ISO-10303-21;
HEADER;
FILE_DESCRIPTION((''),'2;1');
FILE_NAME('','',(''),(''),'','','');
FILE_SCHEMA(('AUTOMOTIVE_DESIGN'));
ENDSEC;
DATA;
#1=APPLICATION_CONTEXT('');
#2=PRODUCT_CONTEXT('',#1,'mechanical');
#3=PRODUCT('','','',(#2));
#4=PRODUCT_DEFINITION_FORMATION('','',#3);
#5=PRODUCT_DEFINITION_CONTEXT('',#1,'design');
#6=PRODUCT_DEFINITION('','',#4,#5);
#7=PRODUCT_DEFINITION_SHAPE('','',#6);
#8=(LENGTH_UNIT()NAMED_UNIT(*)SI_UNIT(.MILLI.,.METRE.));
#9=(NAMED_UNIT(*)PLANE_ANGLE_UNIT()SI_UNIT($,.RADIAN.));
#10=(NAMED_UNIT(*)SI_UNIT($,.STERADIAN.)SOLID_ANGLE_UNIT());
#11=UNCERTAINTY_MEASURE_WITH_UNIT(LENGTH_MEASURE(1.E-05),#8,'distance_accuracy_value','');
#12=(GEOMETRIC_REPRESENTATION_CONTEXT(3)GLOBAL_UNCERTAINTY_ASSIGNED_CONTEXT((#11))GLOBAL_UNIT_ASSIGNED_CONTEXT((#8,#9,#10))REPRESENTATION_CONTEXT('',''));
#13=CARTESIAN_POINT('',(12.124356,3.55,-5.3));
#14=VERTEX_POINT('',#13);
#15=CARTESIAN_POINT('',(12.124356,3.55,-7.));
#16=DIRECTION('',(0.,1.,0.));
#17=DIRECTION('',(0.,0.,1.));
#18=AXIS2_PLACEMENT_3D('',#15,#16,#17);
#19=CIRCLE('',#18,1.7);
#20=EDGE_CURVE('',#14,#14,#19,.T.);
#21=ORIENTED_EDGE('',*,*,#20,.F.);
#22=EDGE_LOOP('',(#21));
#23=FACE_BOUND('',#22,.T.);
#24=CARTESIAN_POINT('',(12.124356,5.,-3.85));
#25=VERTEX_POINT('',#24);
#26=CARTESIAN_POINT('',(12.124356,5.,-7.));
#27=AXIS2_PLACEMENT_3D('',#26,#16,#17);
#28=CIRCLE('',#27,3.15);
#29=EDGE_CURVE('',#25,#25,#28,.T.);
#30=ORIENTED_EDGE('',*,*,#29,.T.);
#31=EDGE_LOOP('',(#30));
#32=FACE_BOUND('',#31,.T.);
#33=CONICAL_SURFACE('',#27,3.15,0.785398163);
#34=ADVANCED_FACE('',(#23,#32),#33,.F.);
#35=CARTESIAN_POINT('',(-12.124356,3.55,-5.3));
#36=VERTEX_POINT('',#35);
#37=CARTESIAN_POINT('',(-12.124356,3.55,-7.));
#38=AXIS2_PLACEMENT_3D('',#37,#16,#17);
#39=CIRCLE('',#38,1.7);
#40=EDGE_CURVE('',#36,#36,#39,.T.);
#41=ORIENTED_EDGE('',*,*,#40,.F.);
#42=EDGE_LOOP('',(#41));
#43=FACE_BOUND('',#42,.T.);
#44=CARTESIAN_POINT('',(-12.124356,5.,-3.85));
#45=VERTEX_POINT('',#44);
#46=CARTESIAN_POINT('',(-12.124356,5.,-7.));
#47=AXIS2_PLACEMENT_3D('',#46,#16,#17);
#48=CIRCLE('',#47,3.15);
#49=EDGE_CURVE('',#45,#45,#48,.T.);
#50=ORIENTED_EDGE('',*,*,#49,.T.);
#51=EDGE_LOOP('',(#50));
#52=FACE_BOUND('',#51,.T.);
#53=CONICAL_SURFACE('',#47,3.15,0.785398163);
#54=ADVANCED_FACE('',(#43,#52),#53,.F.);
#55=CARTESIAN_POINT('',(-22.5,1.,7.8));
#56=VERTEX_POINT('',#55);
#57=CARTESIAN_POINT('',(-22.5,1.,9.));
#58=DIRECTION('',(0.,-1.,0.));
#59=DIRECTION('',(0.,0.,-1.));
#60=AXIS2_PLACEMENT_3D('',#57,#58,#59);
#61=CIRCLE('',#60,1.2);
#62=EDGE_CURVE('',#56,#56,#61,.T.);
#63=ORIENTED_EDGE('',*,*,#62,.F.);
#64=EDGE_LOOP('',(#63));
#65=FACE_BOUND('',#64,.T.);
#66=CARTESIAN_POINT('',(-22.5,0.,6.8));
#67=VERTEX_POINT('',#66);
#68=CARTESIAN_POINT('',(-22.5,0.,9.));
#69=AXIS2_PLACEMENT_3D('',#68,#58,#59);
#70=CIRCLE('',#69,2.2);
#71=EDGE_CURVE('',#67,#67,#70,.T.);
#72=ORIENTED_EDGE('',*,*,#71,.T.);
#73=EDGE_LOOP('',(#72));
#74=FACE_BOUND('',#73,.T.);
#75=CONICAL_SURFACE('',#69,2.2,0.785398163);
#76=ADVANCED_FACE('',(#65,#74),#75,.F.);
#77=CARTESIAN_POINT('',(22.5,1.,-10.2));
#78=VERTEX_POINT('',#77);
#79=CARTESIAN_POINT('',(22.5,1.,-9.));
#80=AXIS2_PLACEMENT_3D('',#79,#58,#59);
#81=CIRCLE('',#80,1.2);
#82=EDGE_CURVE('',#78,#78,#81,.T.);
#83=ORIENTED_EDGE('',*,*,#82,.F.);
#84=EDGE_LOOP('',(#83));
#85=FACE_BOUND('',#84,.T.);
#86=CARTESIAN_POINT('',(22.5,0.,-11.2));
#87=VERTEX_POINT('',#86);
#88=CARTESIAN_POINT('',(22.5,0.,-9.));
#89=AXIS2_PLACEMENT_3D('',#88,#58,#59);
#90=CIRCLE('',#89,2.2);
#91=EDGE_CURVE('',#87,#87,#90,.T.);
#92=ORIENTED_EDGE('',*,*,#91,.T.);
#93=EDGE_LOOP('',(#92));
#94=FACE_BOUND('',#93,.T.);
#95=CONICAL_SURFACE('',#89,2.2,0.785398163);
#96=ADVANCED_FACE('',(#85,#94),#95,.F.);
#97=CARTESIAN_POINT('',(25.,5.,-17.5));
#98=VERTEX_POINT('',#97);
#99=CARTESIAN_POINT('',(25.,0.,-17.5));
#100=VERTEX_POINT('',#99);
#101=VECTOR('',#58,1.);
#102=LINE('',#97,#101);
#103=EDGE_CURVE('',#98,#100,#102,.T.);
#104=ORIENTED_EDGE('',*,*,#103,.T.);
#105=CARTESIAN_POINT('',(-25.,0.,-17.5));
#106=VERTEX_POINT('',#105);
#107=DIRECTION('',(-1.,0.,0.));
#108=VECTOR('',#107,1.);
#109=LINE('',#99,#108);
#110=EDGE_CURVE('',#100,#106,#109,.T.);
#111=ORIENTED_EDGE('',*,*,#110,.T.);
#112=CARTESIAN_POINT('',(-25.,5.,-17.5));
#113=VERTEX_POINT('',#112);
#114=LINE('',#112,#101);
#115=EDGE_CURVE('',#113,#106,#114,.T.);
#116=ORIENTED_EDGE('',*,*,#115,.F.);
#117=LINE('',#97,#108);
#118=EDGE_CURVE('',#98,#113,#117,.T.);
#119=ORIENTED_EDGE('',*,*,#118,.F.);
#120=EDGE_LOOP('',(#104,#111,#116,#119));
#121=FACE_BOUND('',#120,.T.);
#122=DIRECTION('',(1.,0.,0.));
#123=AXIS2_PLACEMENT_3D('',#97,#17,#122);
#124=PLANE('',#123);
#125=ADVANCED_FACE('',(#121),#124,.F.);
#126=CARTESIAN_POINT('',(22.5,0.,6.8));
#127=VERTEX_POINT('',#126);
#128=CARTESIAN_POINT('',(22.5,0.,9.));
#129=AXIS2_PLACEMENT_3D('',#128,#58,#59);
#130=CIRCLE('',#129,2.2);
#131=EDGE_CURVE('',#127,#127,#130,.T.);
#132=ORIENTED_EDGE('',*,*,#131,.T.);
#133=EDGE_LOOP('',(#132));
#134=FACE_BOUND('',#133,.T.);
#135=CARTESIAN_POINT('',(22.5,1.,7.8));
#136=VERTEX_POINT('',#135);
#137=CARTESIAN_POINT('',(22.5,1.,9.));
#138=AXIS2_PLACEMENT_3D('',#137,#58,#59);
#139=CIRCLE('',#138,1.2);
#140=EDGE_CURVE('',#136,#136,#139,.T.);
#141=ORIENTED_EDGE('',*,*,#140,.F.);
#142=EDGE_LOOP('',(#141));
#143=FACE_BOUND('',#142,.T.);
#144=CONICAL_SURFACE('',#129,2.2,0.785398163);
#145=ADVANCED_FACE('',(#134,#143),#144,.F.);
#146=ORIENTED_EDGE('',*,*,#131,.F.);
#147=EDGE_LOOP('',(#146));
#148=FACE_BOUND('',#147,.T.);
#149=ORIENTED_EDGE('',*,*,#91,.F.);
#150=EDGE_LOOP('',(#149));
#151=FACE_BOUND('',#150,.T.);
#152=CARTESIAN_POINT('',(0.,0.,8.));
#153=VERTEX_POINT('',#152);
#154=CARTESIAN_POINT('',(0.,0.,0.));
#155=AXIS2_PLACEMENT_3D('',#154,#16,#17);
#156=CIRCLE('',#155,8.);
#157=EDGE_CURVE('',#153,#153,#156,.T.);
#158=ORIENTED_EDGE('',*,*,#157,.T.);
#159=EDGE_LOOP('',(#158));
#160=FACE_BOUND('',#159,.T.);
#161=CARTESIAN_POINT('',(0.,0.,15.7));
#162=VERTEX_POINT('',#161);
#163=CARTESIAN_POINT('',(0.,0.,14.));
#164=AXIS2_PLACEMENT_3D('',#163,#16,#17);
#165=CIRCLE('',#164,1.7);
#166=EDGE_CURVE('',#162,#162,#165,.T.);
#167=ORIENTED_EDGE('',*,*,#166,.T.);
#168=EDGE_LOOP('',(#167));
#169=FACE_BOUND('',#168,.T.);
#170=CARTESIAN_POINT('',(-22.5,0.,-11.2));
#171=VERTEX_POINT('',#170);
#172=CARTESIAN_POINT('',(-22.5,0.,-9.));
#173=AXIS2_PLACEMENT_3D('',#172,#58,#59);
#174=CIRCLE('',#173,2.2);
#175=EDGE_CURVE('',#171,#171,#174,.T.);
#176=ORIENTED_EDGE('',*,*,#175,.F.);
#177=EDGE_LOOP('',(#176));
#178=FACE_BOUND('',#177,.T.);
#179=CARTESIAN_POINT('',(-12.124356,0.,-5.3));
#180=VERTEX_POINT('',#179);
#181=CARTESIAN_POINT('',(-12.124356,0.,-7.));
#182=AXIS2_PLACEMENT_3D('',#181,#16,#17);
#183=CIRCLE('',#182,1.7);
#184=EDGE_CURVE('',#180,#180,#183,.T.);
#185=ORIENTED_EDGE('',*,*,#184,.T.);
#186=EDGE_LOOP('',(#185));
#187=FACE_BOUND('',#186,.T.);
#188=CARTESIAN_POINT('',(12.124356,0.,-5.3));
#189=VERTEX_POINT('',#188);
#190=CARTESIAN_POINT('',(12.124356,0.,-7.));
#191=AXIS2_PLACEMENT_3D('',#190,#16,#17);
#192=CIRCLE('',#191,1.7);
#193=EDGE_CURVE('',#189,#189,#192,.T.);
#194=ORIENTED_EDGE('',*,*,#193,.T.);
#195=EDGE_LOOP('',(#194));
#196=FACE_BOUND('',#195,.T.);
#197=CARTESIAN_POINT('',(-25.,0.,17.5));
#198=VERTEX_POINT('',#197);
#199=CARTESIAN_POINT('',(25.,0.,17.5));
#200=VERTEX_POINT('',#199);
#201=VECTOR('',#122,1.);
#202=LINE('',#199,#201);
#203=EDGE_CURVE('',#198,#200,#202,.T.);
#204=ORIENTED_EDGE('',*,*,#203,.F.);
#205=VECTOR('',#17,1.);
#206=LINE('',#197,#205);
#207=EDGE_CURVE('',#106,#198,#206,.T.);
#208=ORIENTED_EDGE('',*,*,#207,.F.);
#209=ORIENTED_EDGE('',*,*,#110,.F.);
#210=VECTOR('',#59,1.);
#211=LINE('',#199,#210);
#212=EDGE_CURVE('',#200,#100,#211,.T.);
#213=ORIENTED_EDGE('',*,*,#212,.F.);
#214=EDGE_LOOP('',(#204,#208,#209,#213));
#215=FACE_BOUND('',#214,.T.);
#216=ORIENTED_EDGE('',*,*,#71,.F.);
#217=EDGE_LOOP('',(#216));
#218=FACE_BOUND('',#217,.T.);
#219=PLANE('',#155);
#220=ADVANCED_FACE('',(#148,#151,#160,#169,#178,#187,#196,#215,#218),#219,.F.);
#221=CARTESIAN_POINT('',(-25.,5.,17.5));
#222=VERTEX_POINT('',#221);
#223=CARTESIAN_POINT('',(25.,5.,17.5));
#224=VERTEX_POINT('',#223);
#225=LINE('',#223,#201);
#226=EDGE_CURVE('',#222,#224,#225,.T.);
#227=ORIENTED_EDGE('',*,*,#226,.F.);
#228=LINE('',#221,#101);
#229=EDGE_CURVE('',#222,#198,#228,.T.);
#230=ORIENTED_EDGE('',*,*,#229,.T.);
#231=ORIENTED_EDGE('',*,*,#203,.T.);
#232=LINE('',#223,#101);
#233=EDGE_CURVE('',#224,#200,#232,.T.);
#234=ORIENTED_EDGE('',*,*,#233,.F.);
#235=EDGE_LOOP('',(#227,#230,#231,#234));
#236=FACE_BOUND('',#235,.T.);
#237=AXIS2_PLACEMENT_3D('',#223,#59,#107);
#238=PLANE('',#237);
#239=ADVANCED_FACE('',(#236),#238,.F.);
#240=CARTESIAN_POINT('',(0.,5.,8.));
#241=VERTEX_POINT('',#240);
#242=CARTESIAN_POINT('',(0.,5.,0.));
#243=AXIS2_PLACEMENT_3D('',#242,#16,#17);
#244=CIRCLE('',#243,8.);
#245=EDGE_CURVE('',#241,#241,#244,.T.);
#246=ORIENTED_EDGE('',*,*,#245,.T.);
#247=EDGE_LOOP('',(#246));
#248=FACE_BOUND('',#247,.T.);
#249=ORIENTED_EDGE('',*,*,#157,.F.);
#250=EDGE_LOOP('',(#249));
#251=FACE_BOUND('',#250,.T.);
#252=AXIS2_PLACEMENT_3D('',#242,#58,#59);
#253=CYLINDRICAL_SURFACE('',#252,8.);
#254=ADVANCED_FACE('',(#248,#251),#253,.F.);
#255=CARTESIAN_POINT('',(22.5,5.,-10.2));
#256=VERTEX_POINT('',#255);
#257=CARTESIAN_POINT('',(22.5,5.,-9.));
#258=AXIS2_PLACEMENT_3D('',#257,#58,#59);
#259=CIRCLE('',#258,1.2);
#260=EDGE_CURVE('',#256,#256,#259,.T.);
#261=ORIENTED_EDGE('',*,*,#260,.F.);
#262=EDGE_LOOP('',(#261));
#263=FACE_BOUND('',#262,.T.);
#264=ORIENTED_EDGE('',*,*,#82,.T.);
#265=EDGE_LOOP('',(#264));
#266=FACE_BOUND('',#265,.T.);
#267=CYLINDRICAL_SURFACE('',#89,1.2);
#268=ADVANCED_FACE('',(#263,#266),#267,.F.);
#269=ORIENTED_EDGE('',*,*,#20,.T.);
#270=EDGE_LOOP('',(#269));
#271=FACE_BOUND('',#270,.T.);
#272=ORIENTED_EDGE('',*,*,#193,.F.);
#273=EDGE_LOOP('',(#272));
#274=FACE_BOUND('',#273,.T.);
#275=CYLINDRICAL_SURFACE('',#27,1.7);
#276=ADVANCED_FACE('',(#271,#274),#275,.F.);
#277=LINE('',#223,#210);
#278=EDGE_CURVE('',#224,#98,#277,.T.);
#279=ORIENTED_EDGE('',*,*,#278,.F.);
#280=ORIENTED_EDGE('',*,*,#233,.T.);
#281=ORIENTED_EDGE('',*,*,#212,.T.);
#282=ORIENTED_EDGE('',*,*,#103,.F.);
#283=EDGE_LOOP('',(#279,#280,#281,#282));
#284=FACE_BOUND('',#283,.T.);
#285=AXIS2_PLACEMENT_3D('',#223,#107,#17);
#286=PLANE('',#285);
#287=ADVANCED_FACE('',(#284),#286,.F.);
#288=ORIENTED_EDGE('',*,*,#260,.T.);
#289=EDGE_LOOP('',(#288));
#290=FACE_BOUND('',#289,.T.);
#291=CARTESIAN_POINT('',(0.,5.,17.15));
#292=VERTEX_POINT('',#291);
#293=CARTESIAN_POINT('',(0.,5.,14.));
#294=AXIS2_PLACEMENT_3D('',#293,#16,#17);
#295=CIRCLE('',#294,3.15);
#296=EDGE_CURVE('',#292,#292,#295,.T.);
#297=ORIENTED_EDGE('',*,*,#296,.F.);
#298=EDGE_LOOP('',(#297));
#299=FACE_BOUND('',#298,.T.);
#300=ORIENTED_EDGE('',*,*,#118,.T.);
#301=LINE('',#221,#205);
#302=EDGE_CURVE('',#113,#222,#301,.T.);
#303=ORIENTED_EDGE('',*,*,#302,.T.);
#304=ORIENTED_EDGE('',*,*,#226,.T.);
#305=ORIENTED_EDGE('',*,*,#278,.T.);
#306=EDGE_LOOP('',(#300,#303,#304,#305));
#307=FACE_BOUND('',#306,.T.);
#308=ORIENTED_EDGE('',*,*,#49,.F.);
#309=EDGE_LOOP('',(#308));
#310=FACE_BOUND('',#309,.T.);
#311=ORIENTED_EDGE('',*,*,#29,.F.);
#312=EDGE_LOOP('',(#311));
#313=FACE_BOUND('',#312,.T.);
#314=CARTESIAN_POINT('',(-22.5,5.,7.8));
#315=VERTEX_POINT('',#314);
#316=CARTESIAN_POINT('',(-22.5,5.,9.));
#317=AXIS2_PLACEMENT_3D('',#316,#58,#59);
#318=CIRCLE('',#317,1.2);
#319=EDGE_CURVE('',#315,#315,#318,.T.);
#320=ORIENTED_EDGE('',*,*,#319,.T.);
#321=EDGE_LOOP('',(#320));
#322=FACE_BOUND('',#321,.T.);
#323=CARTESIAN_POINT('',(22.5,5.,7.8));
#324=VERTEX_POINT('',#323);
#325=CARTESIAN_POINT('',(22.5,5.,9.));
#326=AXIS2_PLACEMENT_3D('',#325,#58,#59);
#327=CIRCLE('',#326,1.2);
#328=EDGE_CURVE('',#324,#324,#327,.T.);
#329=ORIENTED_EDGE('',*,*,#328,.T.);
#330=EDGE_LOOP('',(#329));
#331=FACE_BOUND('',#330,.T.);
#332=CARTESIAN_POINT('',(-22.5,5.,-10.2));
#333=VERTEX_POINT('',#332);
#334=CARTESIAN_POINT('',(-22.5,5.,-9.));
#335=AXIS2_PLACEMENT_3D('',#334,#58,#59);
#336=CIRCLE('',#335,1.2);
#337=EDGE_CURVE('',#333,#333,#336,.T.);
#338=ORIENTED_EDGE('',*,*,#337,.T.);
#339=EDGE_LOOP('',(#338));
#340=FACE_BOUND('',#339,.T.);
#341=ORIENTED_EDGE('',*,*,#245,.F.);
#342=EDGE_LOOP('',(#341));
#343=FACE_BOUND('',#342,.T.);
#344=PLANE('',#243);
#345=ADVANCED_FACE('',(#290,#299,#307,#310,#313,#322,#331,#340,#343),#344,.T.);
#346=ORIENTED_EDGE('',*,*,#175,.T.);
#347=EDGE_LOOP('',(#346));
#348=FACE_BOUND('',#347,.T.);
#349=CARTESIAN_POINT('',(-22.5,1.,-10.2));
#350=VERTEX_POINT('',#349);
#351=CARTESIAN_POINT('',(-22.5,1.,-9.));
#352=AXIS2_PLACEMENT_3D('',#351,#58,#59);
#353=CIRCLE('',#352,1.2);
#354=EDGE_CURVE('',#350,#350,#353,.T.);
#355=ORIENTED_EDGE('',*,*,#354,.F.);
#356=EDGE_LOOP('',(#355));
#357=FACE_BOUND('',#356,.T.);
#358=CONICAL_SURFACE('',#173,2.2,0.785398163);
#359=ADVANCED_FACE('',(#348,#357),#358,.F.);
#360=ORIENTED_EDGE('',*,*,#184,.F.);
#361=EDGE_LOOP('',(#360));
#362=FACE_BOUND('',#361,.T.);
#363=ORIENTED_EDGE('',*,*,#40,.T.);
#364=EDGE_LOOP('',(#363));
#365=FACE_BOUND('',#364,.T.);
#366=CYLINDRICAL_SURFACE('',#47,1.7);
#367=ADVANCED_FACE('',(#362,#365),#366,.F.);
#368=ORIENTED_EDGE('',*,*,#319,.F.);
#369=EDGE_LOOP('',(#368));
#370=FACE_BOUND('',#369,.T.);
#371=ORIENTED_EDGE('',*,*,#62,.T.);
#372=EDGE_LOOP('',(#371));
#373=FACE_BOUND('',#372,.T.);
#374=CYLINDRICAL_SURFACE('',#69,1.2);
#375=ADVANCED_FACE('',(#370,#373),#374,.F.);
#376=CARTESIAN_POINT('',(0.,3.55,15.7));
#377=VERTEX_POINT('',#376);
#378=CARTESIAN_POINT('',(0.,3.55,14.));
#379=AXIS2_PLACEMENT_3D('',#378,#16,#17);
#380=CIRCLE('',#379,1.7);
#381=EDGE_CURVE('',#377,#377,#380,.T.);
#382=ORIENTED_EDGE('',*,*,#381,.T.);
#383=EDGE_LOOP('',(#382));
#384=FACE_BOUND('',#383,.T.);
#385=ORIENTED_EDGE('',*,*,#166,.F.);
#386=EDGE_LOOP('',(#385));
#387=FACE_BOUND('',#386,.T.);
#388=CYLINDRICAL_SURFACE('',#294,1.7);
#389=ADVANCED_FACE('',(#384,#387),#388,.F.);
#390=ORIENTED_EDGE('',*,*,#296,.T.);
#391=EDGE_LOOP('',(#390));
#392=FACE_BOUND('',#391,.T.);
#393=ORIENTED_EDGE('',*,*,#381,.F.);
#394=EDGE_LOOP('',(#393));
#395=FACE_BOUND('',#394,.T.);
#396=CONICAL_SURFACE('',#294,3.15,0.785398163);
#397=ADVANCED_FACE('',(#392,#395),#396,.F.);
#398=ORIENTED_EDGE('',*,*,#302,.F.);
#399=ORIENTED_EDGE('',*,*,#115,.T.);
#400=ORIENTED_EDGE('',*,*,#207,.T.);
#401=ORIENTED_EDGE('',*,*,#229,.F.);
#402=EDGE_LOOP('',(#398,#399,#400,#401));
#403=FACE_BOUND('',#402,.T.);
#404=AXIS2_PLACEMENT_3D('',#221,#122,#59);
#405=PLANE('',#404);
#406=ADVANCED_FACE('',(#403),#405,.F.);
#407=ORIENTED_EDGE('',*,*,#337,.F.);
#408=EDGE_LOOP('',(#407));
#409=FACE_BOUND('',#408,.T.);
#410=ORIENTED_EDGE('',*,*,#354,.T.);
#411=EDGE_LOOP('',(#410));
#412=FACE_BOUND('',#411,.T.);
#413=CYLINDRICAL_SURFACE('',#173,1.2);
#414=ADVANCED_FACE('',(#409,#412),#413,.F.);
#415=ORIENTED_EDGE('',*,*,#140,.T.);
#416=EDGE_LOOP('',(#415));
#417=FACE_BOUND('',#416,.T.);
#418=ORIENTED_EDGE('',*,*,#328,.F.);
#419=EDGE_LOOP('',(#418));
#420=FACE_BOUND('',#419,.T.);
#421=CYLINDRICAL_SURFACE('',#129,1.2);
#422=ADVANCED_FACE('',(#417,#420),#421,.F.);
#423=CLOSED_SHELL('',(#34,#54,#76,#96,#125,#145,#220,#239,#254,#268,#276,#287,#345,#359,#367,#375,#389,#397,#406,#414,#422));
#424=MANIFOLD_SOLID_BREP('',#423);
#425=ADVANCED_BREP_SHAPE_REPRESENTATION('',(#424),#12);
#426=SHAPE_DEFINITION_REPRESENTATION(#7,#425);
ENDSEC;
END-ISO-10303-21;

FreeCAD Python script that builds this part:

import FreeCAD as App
import Part
import Sketcher
from FreeCAD import Vector
Q = App.Units.Quantity

doc = App.newDocument("Part")
body = doc.addObject("PartDesign::Body", "Body")

# Sketch on XZ plane
sketch1 = body.newObject("Sketcher::SketchObject", "Sketch")
sketch1.AttachmentSupport = (doc.getObject("XZ_Plane"), [""])
sketch1.MapMode = "FlatFace"
sketch1.addGeometry([
    Part.LineSegment(Vector(-25, -18, 0), Vector(-25, 18, 0)),  # 0
    Part.LineSegment(Vector(-25, 18, 0), Vector(25, 18, 0)),  # 1
    Part.LineSegment(Vector(25, 18, 0), Vector(25, -18, 0)),  # 2
    Part.LineSegment(Vector(25, -18, 0), Vector(-25, -18, 0)),  # 3
    Part.Circle(Vector(0, 0, 0), Vector(0, 0, 1), 8),  # 4
], False)
sketch1.addConstraint([
    Sketcher.Constraint("Coincident", 0, 2, 1, 1),
    Sketcher.Constraint("Coincident", 1, 2, 2, 1),
    Sketcher.Constraint("Coincident", 2, 2, 3, 1),
    Sketcher.Constraint("Coincident", 3, 2, 0, 1),
    Sketcher.Constraint("Vertical", 0),
    Sketcher.Constraint("Horizontal", 1),
    Sketcher.Constraint("Vertical", 2),
    Sketcher.Constraint("Horizontal", 3),
    Sketcher.Constraint("Coincident", 4, 3, -1, 1),
    Sketcher.Constraint("Symmetric", 0, 2, 2, 2, -1, 1),
    Sketcher.Constraint("Diameter", 4, Q("16 mm")),
    Sketcher.Constraint("DistanceX", 1, 1, 1, 2, Q("50 mm")),
    Sketcher.Constraint("DistanceY", 0, 1, 0, 2, Q("35 mm")),
])
pad1 = body.newObject("PartDesign::Pad", "Pad")
pad1.Profile = sketch1
pad1.Length = 5
pad1.Reversed = True

# Sketch on XZ plane
sketch2 = body.newObject("Sketcher::SketchObject", "Sketch001")
sketch2.AttachmentSupport = (doc.getObject("XZ_Plane"), [""])
sketch2.MapMode = "FlatFace"
sketch2.AttachmentOffset = App.Placement(Vector(0, 0, -5), App.Rotation())
sketch2.addGeometry([
    Part.Circle(Vector(12.1, -7, 0), Vector(0, 0, 1), 1.7),
    Part.Circle(Vector(0, 14, 0), Vector(0, 0, 1), 1.7),
    Part.Circle(Vector(-12.1, -7, 0), Vector(0, 0, 1), 1.7),
], False)
sketch2.addConstraint([
    Sketcher.Constraint("Equal", 0, 1),
    Sketcher.Constraint("Equal", 1, 2),
    Sketcher.Constraint("Symmetric", 0, 3, 2, 3, -2),
    Sketcher.Constraint("PointOnObject", 1, 3, -2),
    Sketcher.Constraint("Diameter", 0, Q("3.4 mm")),
    Sketcher.Constraint("DistanceY", 0, 3, -1, 1, Q("7 mm")),
    Sketcher.Constraint("DistanceY", -1, 1, 1, 3, Q("14 mm")),
    Sketcher.Constraint("DistanceX", 2, 3, 0, 3, Q("24.248711 mm")),
])
doc.recompute()
hole = body.newObject("PartDesign::Hole", "Hole")
hole.Profile = sketch2
hole.ThreadType = "None"
hole.Diameter = 3.4
hole.DepthType = "ThroughAll"
hole.HoleCutType = "Countersink"
hole.HoleCutDiameter = 6.3
hole.HoleCutCountersinkAngle = 90
hole.Reversed = True

# Sketch on XZ plane
sketch3 = body.newObject("Sketcher::SketchObject", "Sketch002")
sketch3.AttachmentSupport = (doc.getObject("XZ_Plane"), [""])
sketch3.MapMode = "FlatFace"
sketch3.addGeometry([
    Part.Circle(Vector(-22.5, 9, 0), Vector(0, 0, 1), 1.2),
    Part.Circle(Vector(-22.5, -9, 0), Vector(0, 0, 1), 1.2),
    Part.Circle(Vector(22.5, -9, 0), Vector(0, 0, 1), 1.2),
    Part.Circle(Vector(22.5, 9, 0), Vector(0, 0, 1), 1.2),
], False)
sketch3.addConstraint([
    Sketcher.Constraint("Equal", 0, 1),
    Sketcher.Constraint("Equal", 1, 2),
    Sketcher.Constraint("Equal", 2, 3),
    Sketcher.Constraint("Symmetric", 0, 3, 2, 3, -1, 1),
    Sketcher.Constraint("Symmetric", 1, 3, 3, 3, -1, 1),
    Sketcher.Constraint("Symmetric", 1, 3, 2, 3, -2),
    Sketcher.Constraint("Diameter", 0, Q("2.4 mm")),
    Sketcher.Constraint("DistanceY", -1, 1, 0, 3, Q("9 mm")),
    Sketcher.Constraint("DistanceX", 1, 3, 2, 3, Q("45 mm")),
])
doc.recompute()
hole2 = body.newObject("PartDesign::Hole", "Hole001")
hole2.Profile = sketch3
hole2.ThreadType = "None"
hole2.Diameter = 2.4
hole2.DepthType = "ThroughAll"
hole2.HoleCutType = "Countersink"
hole2.HoleCutDiameter = 4.4
hole2.HoleCutCountersinkAngle = 90

doc.recompute()
